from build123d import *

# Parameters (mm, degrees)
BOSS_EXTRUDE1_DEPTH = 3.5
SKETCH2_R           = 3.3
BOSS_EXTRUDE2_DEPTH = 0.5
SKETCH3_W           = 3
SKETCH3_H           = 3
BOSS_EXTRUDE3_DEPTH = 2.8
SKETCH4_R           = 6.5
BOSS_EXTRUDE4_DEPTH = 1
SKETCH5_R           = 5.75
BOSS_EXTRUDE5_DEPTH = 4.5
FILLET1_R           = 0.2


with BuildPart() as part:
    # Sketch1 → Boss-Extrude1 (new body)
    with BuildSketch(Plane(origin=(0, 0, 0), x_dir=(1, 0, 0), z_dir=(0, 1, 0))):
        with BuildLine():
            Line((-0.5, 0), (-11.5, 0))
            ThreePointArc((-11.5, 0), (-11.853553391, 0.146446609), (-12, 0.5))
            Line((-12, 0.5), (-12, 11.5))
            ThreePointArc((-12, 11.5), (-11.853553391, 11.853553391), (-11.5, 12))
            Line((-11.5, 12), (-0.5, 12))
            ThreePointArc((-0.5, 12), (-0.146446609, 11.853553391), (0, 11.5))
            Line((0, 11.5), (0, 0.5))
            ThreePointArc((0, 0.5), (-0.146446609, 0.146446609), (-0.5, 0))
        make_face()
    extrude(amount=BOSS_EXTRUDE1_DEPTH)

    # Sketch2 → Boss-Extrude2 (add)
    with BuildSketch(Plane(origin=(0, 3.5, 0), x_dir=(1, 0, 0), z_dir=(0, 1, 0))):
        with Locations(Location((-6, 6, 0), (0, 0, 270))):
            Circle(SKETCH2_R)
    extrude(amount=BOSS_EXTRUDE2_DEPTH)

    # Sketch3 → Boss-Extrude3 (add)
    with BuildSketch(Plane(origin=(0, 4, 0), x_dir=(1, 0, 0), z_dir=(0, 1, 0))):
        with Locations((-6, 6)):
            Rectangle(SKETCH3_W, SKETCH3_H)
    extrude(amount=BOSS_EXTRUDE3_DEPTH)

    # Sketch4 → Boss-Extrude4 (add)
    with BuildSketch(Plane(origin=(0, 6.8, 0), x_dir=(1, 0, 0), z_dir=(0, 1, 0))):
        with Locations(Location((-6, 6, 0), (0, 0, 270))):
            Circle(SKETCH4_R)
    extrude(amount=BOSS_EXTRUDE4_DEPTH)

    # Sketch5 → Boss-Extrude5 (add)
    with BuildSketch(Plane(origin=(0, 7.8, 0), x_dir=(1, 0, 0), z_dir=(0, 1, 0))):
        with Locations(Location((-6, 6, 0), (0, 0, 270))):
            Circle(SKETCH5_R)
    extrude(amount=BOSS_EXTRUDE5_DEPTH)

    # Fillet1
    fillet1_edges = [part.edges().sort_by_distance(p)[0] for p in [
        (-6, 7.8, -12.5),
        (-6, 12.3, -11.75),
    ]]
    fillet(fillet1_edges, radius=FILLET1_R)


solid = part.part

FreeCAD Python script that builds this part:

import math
import FreeCAD as App
import Part
import Sketcher

V = App.Vector


def edges_at(feature, points):
    """Names of the edges that pass closest to the given points."""
    edges = feature.Shape.Edges
    near = lambda p: min(range(len(edges)), key=lambda i: edges[i].distToShape(Part.Vertex(*p))[0])
    return sorted({f"Edge{near(p) + 1}" for p in points})

doc = App.newDocument("Part")
body = doc.addObject("PartDesign::Body", "Body")

# Sketch on XZ plane
sketch1 = body.newObject("Sketcher::SketchObject", "Sketch")
sketch1.AttachmentSupport = (doc.getObject("XZ_Plane"), [""])
sketch1.MapMode = "FlatFace"
sketch1.addGeometry(Part.LineSegment(V(-11.5, 0, 0), V(-0.5, 0, 0)), False)
sketch1.addGeometry(Part.ArcOfCircle(Part.Circle(V(-0.5, -0.5, 0), V(0, 0, 1), 0.5), math.radians(0), math.radians(90)), False)
sketch1.addGeometry(Part.LineSegment(V(0, -0.5, 0), V(0, -11.5, 0)), False)
sketch1.addGeometry(Part.ArcOfCircle(Part.Circle(V(-0.5, -11.5, 0), V(0, 0, 1), 0.5), math.radians(-90), math.radians(0)), False)
sketch1.addGeometry(Part.LineSegment(V(-0.5, -12, 0), V(-11.5, -12, 0)), False)
sketch1.addGeometry(Part.ArcOfCircle(Part.Circle(V(-11.5, -11.5, 0), V(0, 0, 1), 0.5), math.radians(180), math.radians(270)), False)
sketch1.addGeometry(Part.LineSegment(V(-12, -11.5, 0), V(-12, -0.5, 0)), False)
sketch1.addGeometry(Part.ArcOfCircle(Part.Circle(V(-11.5, -0.5, 0), V(0, 0, 1), 0.5), math.radians(90), math.radians(180)), False)
sketch1.addConstraint(Sketcher.Constraint("Tangent", 0, 2, 1, 2))
sketch1.addConstraint(Sketcher.Constraint("Tangent", 1, 1, 2, 1))
sketch1.addConstraint(Sketcher.Constraint("Tangent", 2, 2, 3, 2))
sketch1.addConstraint(Sketcher.Constraint("Tangent", 3, 1, 4, 1))
sketch1.addConstraint(Sketcher.Constraint("Tangent", 4, 2, 5, 2))
sketch1.addConstraint(Sketcher.Constraint("Tangent", 5, 1, 6, 1))
sketch1.addConstraint(Sketcher.Constraint("Tangent", 6, 2, 7, 2))
sketch1.addConstraint(Sketcher.Constraint("Tangent", 7, 1, 0, 1))
sketch1.addConstraint(Sketcher.Constraint("Horizontal", 0))
sketch1.addConstraint(Sketcher.Constraint("Vertical", 2))
sketch1.addConstraint(Sketcher.Constraint("Horizontal", 4))
sketch1.addConstraint(Sketcher.Constraint("Vertical", 6))
sketch1.addConstraint(Sketcher.Constraint("Equal", 1, 3))
sketch1.addConstraint(Sketcher.Constraint("Equal", 3, 5))
sketch1.addConstraint(Sketcher.Constraint("Equal", 5, 7))
sketch1.addConstraint(Sketcher.Constraint("PointOnObject", 0, 2, -1))
sketch1.addConstraint(Sketcher.Constraint("PointOnObject", 1, 1, -2))
sketch1.addConstraint(Sketcher.Constraint("Equal", 4, 2))
sketch1.addConstraint(Sketcher.Constraint("Radius", 1, 0.5))
sketch1.addConstraint(Sketcher.Constraint("DistanceX", 0, 1, 0, 2, 11.0))
pad1 = body.newObject("PartDesign::Pad", "Pad")
pad1.Profile = sketch1
pad1.Length = 3.5
pad1.Reversed = True

# Sketch on XZ plane
sketch2 = body.newObject("Sketcher::SketchObject", "Sketch001")
sketch2.AttachmentSupport = (doc.getObject("XZ_Plane"), [""])
sketch2.MapMode = "FlatFace"
sketch2.AttachmentOffset = App.Placement(V(0, 0, -3.5), App.Rotation())
sketch2.addGeometry(Part.Circle(V(-6, -6, 0), V(0, 0, 1), 3.3), False)
sketch2.addConstraint(Sketcher.Constraint("Diameter", 0, 6.6))
sketch2.addConstraint(Sketcher.Constraint("DistanceX", 0, 3, -1, 1, 6.0))
sketch2.addConstraint(Sketcher.Constraint("DistanceY", 0, 3, -1, 1, 6.0))
pad2 = body.newObject("PartDesign::Pad", "Pad001")
pad2.Profile = sketch2
pad2.Length = 0.5
pad2.Reversed = True

# Sketch on XZ plane
sketch3 = body.newObject("Sketcher::SketchObject", "Sketch002")
sketch3.AttachmentSupport = (doc.getObject("XZ_Plane"), [""])
sketch3.MapMode = "FlatFace"
sketch3.AttachmentOffset = App.Placement(V(0, 0, -4), App.Rotation())
sketch3.addGeometry(Part.LineSegment(V(-7.5, -7.5, 0), V(-7.5, -4.5, 0)), False)
sketch3.addGeometry(Part.LineSegment(V(-7.5, -4.5, 0), V(-4.5, -4.5, 0)), False)
sketch3.addGeometry(Part.LineSegment(V(-4.5, -4.5, 0), V(-4.5, -7.5, 0)), False)
sketch3.addGeometry(Part.LineSegment(V(-4.5, -7.5, 0), V(-7.5, -7.5, 0)), False)
sketch3.addConstraint(Sketcher.Constraint("Coincident", 0, 2, 1, 1))
sketch3.addConstraint(Sketcher.Constraint("Coincident", 1, 2, 2, 1))
sketch3.addConstraint(Sketcher.Constraint("Coincident", 2, 2, 3, 1))
sketch3.addConstraint(Sketcher.Constraint("Coincident", 3, 2, 0, 1))
sketch3.addConstraint(Sketcher.Constraint("Vertical", 0))
sketch3.addConstraint(Sketcher.Constraint("Horizontal", 1))
sketch3.addConstraint(Sketcher.Constraint("Vertical", 2))
sketch3.addConstraint(Sketcher.Constraint("Horizontal", 3))
sketch3.addConstraint(Sketcher.Constraint("Equal", 3, 0))
sketch3.addConstraint(Sketcher.Constraint("DistanceX", 1, 1, 1, 2, 3.0))
sketch3.addConstraint(Sketcher.Constraint("DistanceX", 0, 2, -1, 1, 7.5))
sketch3.addConstraint(Sketcher.Constraint("DistanceY", 0, 2, -1, 1, 4.5))
pad3 = body.newObject("PartDesign::Pad", "Pad002")
pad3.Profile = sketch3
pad3.Length = 2.8
pad3.Reversed = True

# Sketch on XZ plane
sketch4 = body.newObject("Sketcher::SketchObject", "Sketch003")
sketch4.AttachmentSupport = (doc.getObject("XZ_Plane"), [""])
sketch4.MapMode = "FlatFace"
sketch4.AttachmentOffset = App.Placement(V(0, 0, -6.8), App.Rotation())
sketch4.addGeometry(Part.Circle(V(-6, -6, 0), V(0, 0, 1), 6), False)
sketch4.addConstraint(Sketcher.Constraint("Diameter", 0, 13.0))
sketch4.addConstraint(Sketcher.Constraint("DistanceX", 0, 3, -1, 1, 6.0))
sketch4.addConstraint(Sketcher.Constraint("DistanceY", 0, 3, -1, 1, 6.0))
pad4 = body.newObject("PartDesign::Pad", "Pad003")
pad4.Profile = sketch4
pad4.Length = 1
pad4.Reversed = True

# Sketch on XZ plane
sketch5 = body.newObject("Sketcher::SketchObject", "Sketch004")
sketch5.AttachmentSupport = (doc.getObject("XZ_Plane"), [""])
sketch5.MapMode = "FlatFace"
sketch5.AttachmentOffset = App.Placement(V(0, 0, -7.8), App.Rotation())
sketch5.addGeometry(Part.Circle(V(-6, -6, 0), V(0, 0, 1), 6), False)
sketch5.addConstraint(Sketcher.Constraint("Diameter", 0, 11.5))
sketch5.addConstraint(Sketcher.Constraint("DistanceX", 0, 3, -1, 1, 6.0))
sketch5.addConstraint(Sketcher.Constraint("DistanceY", 0, 3, -1, 1, 6.0))
pad5 = body.newObject("PartDesign::Pad", "Pad004")
pad5.Profile = sketch5
pad5.Length = 4.5
pad5.Reversed = True
doc.recompute()

fillet = body.newObject("PartDesign::Fillet", "Fillet")
fillet.Base = (pad5, edges_at(pad5, [(-6, 7.8, -12.5), (-6, 12.3, -11.75)]))
fillet.Radius = 0.2

doc.recompute()
